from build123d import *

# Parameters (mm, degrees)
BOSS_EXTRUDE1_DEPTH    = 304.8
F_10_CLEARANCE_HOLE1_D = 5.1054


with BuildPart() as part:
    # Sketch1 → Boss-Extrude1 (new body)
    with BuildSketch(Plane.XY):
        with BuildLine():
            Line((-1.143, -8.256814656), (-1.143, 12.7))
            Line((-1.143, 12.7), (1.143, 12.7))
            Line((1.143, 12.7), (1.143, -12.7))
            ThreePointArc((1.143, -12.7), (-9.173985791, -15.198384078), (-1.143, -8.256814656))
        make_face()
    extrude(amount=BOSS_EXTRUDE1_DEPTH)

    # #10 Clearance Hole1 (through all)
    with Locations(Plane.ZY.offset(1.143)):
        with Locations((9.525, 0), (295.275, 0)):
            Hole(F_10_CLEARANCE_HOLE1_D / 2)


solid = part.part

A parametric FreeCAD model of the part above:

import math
import FreeCAD as App
import Part
import Sketcher
from FreeCAD import Vector
Q = App.Units.Quantity

doc = App.newDocument("Part")
body = doc.addObject("PartDesign::Body", "Body")

# Sketch on XY plane
sketch1 = doc.addObject("Sketcher::SketchObject", "Sketch")
body.addObject(sketch1)
sketch1.AttachmentSupport = (doc.XY_Plane, [""])
sketch1.MapMode = "FlatFace"
sketch1.addGeometry([
    Part.LineSegment(Vector(-1.1, 12.7, 0), Vector(-1.1, -8.3, 0)),
    Part.ArcOfCircle(Part.Circle(Vector(-4.3, -12.7, 0), Vector(0, 0, 1), 5.5), math.radians(54), math.radians(360)),
    Part.LineSegment(Vector(1.1, -12.7, 0), Vector(1.1, 12.7, 0)),
    Part.LineSegment(Vector(1.1, 12.7, 0), Vector(-1.1, 12.7, 0)),
], False)
sketch1.addConstraint([
    Sketcher.Constraint("Coincident", 0, 2, 1, 1),
    Sketcher.Constraint("Tangent", 1, 2, 2, 1),
    Sketcher.Constraint("Coincident", 2, 2, 3, 1),
    Sketcher.Constraint("Coincident", 3, 2, 0, 1),
    Sketcher.Constraint("Vertical", 0),
    Sketcher.Constraint("Vertical", 2),
    Sketcher.Constraint("Horizontal", 3),
    Sketcher.Constraint("Symmetric", 1, 2, 3, 2, -1, 1),
    Sketcher.Constraint("DistanceY", 2, 1, 2, 2, Q("1 in")),
    Sketcher.Constraint("Radius", 1, Q("0.215 in")),
    Sketcher.Constraint("DistanceX", 3, 2, 3, 1, Q("0.09 in")),
])
pad1 = doc.addObject("PartDesign::Pad", "Pad")
body.addObject(pad1)
pad1.Profile = sketch1
pad1.Length = Q("12 in")

# Sketch on YZ plane
sketch2 = doc.addObject("Sketcher::SketchObject", "Sketch001")
body.addObject(sketch2)
sketch2.AttachmentSupport = (doc.YZ_Plane, [""])
sketch2.MapMode = "FlatFace"
sketch2.AttachmentOffset = App.Placement(Vector(0, 0, -0.045 * 25.4), App.Rotation())
sketch2.addGeometry([
    Part.Circle(Vector(0, 9.5, 0), Vector(0, 0, 1), 2.6),
    Part.Circle(Vector(0, 295.3, 0), Vector(0, 0, 1), 2.6),
], False)
sketch2.addConstraint([
    Sketcher.Constraint("Equal", 0, 1),
    Sketcher.Constraint("PointOnObject", 0, 3, -2),
    Sketcher.Constraint("PointOnObject", 1, 3, -2),
    Sketcher.Constraint("Diameter", 0, Q("0.201 in")),
    Sketcher.Constraint("DistanceY", 0, 3, 1, 3, Q("11.25 in")),
    Sketcher.Constraint("DistanceY", -1, 1, 0, 3, Q("0.375 in")),
])
doc.recompute()
hole = doc.addObject("PartDesign::Hole", "Hole")
body.addObject(hole)
hole.Profile = sketch2
hole.ThreadType = "None"
hole.Diameter = Q("0.201 in")
hole.DepthType = "ThroughAll"
hole.Reversed = True

doc.recompute()
